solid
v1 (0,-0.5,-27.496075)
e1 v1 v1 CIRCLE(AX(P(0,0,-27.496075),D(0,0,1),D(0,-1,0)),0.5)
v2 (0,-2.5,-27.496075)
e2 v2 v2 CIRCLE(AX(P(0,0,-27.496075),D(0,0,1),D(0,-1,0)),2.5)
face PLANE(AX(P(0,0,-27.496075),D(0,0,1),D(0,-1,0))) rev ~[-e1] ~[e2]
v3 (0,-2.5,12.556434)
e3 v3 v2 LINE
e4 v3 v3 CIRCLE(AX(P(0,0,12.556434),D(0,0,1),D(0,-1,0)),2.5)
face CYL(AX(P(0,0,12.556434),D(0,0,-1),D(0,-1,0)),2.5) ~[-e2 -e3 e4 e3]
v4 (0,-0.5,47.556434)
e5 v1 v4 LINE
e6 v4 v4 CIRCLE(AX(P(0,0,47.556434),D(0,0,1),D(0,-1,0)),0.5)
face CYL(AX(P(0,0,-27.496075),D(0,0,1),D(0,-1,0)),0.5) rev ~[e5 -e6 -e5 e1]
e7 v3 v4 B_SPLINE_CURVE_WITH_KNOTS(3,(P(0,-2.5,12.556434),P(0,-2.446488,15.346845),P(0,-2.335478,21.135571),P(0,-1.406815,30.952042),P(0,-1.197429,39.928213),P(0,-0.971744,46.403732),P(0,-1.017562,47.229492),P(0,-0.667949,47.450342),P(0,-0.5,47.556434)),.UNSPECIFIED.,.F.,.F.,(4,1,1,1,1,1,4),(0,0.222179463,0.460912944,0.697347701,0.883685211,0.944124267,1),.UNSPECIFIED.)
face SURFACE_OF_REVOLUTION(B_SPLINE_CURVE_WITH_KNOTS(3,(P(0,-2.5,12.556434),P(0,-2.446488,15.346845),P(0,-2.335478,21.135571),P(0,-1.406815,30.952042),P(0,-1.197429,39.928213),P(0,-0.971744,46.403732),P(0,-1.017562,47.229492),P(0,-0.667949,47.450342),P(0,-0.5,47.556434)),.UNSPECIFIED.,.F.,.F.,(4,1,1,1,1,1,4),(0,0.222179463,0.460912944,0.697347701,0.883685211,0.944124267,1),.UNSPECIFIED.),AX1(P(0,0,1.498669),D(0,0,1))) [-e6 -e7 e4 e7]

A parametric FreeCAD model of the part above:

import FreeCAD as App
import Part
import Sketcher
from FreeCAD import Vector

doc = App.newDocument("Part")
body = doc.addObject("PartDesign::Body", "Body")

# Sketch on YZ plane
sketch1 = body.newObject("Sketcher::SketchObject", "Sketch")
sketch1.AttachmentSupport = (doc.getObject("YZ_Plane"), [""])
sketch1.MapMode = "FlatFace"
sketch1.addGeometry([
    Part.BSplineCurve([Vector(-2.5, 12.556434, 0), Vector(-2.446488, 15.346845, 0), Vector(-2.335478, 21.135571, 0), Vector(-1.406815, 30.952042, 0), Vector(-1.197429, 39.928213, 0), Vector(-0.971744, 46.403732, 0), Vector(-1.017562, 47.229492, 0), Vector(-0.667949, 47.450342, 0), Vector(-0.5, 47.556434, 0)], [4, 1, 1, 1, 1, 1, 4], [0, 0.222179463, 0.460912944, 0.697347701, 0.883685211, 0.944124267, 1], False, 3, [1, 1, 1, 1, 1, 1, 1, 1, 1], False),
    Part.LineSegment(Vector(-2.5, 12.556434, 0), Vector(-2.5, -27.496075, 0)),
    Part.LineSegment(Vector(-2.5, -27.496075, 0), Vector(-0.5, -27.496075, 0)),
    Part.LineSegment(Vector(-0.5, -27.496075, 0), Vector(-0.5, 47.556434, 0)),
], False)
sketch1.addConstraint([
    Sketcher.Constraint("Block", 0),
    Sketcher.Constraint("Coincident", 0, 1, 1, 1),
    Sketcher.Constraint("Coincident", 1, 2, 2, 1),
    Sketcher.Constraint("Coincident", 2, 2, 3, 1),
    Sketcher.Constraint("Coincident", 3, 2, 0, 2),
    Sketcher.Constraint("Vertical", 1),
    Sketcher.Constraint("Horizontal", 2),
    Sketcher.Constraint("Vertical", 3),
    Sketcher.Constraint("DistanceY", 1, 2, 1, 1, 40.05251),
])
revolution = body.newObject("PartDesign::Revolution", "Revolution")
revolution.Profile = sketch1
revolution.ReferenceAxis = (sketch1, ["V_Axis"])
revolution.Angle = 360

doc.recompute()
